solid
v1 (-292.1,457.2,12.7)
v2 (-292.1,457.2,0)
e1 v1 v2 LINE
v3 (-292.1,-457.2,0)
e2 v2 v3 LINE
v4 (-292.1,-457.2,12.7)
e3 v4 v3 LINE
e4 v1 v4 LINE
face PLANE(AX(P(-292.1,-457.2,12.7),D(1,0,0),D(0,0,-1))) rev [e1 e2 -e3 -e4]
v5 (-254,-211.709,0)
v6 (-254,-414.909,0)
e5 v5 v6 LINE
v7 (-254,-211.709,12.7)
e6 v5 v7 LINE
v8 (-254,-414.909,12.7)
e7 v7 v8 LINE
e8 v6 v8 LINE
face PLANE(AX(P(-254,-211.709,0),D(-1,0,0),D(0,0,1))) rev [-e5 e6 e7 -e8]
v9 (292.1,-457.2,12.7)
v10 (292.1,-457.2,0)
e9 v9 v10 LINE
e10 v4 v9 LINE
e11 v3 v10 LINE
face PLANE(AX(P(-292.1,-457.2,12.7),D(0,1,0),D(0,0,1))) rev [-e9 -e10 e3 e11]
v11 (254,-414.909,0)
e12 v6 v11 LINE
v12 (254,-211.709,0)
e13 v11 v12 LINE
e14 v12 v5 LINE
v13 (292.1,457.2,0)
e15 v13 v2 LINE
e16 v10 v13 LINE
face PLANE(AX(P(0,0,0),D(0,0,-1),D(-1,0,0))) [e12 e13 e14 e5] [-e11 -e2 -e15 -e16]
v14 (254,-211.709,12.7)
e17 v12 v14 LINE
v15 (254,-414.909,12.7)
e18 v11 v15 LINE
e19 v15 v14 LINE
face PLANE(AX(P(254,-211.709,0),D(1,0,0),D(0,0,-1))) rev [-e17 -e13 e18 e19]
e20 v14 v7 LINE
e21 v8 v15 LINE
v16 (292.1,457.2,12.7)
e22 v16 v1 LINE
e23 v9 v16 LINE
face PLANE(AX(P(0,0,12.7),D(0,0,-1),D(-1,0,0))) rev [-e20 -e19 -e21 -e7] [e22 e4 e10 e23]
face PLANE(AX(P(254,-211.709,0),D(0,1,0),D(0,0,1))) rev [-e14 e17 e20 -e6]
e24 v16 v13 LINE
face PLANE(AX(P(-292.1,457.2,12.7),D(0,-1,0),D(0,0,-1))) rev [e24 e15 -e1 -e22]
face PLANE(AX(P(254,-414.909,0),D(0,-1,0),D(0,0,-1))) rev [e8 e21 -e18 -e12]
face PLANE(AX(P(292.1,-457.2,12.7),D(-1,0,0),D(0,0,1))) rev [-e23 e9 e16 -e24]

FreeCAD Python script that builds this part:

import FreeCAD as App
import Part
import Sketcher

V = App.Vector
Q = App.Units.Quantity


def add_polygon(sketch, points):
    """Adds a closed chain of lines whose ends are joined by coincident constraints."""
    first, n = sketch.GeometryCount, len(points)
    for a, b in zip(points, points[1:] + points[:1]):
        sketch.addGeometry(Part.LineSegment(App.Vector(*a, 0), App.Vector(*b, 0)), False)
    for i in range(n):
        sketch.addConstraint(Sketcher.Constraint("Coincident", first + i, 2, first + (i + 1) % n, 1))

doc = App.newDocument("Part")
params = doc.addObject("Spreadsheet::Sheet", "Params")
for row, (alias, value) in enumerate([
    ("sketch1_width", "23 in"),
    ("sketch1_height", "36 in"),
    ("pad1_length", "0.5 in"),
    ("sketch2_width", "20 in"),
    ("sketch2_height", "8 in"),
], start=1):
    params.set(f"A{row}", alias)
    params.set(f"B{row}", "=" + value)
    params.setAlias(f"B{row}", alias)

body = doc.addObject("PartDesign::Body", "Body")

sketch1 = body.newObject("Sketcher::SketchObject", "Sketch")
sketch1.AttachmentSupport = (doc.getObject("XY_Plane"), [""])
sketch1.MapMode = "FlatFace"
add_polygon(sketch1, [(-292.1, 457.2), (-292.1, -457.2), (292.1, -457.2), (292.1, 457.2)])
sketch1.addConstraint([
    Sketcher.Constraint("Vertical", 0),
    Sketcher.Constraint("Horizontal", 1),
    Sketcher.Constraint("Vertical", 2),
    Sketcher.Constraint("Horizontal", 3),
    Sketcher.Constraint("Symmetric", 0, 2, 2, 2, -1, 1),
    Sketcher.Constraint("DistanceX", 1, 1, 1, 2, Q("23 in")),
    Sketcher.Constraint("DistanceY", 0, 2, 0, 1, Q("36 in")),
])
sketch1.setExpression("Constraints[9]", "Params.sketch1_width")
sketch1.setExpression("Constraints[10]", "Params.sketch1_height")
pad1 = body.newObject("PartDesign::Pad", "Pad")
pad1.Profile = sketch1
pad1.setExpression("Length", "Params.pad1_length")

sketch2 = body.newObject("Sketcher::SketchObject", "Sketch001")
sketch2.AttachmentSupport = (doc.getObject("XY_Plane"), [""])
sketch2.MapMode = "FlatFace"
sketch2.AttachmentOffset = App.Placement(V(0, 0, 0.5 * 25.4), App.Rotation())
add_polygon(sketch2, [(-254, -211.709), (-254, -414.909), (254, -414.909), (254, -211.709)])
sketch2.addConstraint([
    Sketcher.Constraint("Vertical", 0),
    Sketcher.Constraint("Horizontal", 1),
    Sketcher.Constraint("Vertical", 2),
    Sketcher.Constraint("Horizontal", 3),
    Sketcher.Constraint("DistanceX", 1, 1, 1, 2, Q("20 in")),
    Sketcher.Constraint("DistanceY", 0, 2, 0, 1, Q("8 in")),
    Sketcher.Constraint("DistanceX", 0, 2, -1, 1, Q("10 in")),
    Sketcher.Constraint("DistanceY", 0, 2, -1, 1, Q("16.335 in")),
])
sketch2.setExpression("Constraints[8]", "Params.sketch2_width")
sketch2.setExpression("Constraints[9]", "Params.sketch2_height")
pocket1 = body.newObject("PartDesign::Pocket", "Pocket")
pocket1.Profile = sketch2
pocket1.Type = "ThroughAll"

doc.recompute()
